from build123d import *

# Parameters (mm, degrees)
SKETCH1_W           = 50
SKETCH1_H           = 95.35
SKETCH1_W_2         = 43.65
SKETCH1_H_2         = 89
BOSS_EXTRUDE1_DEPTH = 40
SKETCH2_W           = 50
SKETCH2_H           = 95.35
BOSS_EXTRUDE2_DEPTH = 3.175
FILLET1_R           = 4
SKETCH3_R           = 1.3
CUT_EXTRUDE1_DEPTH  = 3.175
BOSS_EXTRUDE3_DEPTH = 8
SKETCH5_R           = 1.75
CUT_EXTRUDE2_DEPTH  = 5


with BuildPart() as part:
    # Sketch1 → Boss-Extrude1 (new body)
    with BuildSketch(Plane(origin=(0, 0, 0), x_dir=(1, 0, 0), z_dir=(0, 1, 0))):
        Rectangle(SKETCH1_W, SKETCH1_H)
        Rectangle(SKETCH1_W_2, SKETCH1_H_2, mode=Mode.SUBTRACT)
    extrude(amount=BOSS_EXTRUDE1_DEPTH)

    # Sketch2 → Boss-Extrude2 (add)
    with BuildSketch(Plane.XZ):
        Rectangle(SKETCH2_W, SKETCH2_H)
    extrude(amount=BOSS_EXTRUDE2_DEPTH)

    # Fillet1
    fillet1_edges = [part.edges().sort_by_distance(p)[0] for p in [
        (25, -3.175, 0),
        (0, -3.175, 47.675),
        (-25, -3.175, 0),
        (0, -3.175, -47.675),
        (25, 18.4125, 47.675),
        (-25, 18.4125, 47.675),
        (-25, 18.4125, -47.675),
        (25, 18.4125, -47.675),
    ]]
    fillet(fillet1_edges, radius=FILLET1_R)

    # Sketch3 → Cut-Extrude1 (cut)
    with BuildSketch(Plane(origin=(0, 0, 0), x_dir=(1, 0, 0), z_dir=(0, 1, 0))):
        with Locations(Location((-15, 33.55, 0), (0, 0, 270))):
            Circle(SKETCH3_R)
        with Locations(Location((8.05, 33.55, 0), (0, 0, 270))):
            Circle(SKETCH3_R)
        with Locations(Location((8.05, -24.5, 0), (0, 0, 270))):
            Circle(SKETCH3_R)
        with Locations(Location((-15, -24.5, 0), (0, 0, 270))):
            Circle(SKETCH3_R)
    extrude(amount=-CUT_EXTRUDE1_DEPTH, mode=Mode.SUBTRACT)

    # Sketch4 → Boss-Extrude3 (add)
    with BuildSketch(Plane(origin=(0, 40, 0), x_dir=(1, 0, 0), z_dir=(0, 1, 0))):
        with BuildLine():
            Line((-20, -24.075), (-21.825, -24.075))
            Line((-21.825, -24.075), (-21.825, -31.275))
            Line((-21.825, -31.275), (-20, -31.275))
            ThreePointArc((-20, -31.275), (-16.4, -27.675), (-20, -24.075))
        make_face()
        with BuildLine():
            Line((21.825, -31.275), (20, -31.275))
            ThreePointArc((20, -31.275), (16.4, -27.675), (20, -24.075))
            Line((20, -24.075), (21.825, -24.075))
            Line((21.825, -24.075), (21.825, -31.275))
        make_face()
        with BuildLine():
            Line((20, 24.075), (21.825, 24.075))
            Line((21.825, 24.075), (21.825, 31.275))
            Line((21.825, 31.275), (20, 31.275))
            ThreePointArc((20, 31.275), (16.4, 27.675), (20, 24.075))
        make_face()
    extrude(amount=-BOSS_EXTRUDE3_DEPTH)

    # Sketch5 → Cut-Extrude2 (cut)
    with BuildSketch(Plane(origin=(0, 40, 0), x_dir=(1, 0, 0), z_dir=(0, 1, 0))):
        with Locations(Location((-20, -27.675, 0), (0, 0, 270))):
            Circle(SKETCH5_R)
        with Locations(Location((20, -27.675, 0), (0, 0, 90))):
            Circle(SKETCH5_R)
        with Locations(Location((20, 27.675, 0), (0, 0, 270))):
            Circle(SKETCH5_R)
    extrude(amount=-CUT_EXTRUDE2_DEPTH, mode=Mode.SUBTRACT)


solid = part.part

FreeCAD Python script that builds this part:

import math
import FreeCAD as App
import Part
import Sketcher
from FreeCAD import Vector


def edges_at(feature, points):
    """Names of the edges that pass closest to the given points."""
    edges = feature.Shape.Edges
    near = lambda p: min(range(len(edges)), key=lambda i: edges[i].distToShape(Part.Vertex(*p))[0])
    return sorted({f"Edge{near(p) + 1}" for p in points})

doc = App.newDocument("Part")
params = doc.addObject("Spreadsheet::Sheet", "Params")
for row, (alias, value) in enumerate([
    ("sketch1_width", "50 mm"),
    ("sketch1_height", "89 mm"),
    ("sketch1_width2", "43.65 mm"),
    ("sketch1_height2", "95.35 mm"),
    ("pad1_length", "40 mm"),
    ("sketch2_width", "50 mm"),
    ("sketch2_height", "95.35 mm"),
    ("pad2_length", "3.175 mm"),
    ("fillet_radius", "4 mm"),
    ("sketch3_diameter", "2.6 mm"),
    ("pocket1_length", "3.175 mm"),
    ("sketch4_radius", "3.6 mm"),
    ("pad3_length", "8 mm"),
    ("sketch5_diameter", "3.5 mm"),
    ("pocket2_length", "5 mm"),
], start=1):
    params.set(f"A{row}", alias)
    params.set(f"B{row}", "=" + value)
    params.setAlias(f"B{row}", alias)

body = doc.addObject("PartDesign::Body", "Body")

# Sketch on XZ plane
sketch1 = body.newObject("Sketcher::SketchObject", "Sketch")
sketch1.AttachmentSupport = (doc.getObject("XZ_Plane"), [""])
sketch1.MapMode = "FlatFace"
sketch1.addGeometry(Part.LineSegment(Vector(-25, -48, 0), Vector(-25, 48, 0)), False)
sketch1.addGeometry(Part.LineSegment(Vector(-25, 48, 0), Vector(25, 48, 0)), False)
sketch1.addGeometry(Part.LineSegment(Vector(25, 48, 0), Vector(25, -48, 0)), False)
sketch1.addGeometry(Part.LineSegment(Vector(25, -48, 0), Vector(-25, -48, 0)), False)
sketch1.addGeometry(Part.LineSegment(Vector(22, 44, 0), Vector(-22, 44, 0)), False)
sketch1.addGeometry(Part.LineSegment(Vector(-22, 44, 0), Vector(-22, -44, 0)), False)
sketch1.addGeometry(Part.LineSegment(Vector(-22, -44, 0), Vector(22, -44, 0)), False)
sketch1.addGeometry(Part.LineSegment(Vector(22, -44, 0), Vector(22, 44, 0)), False)
sketch1.addConstraint(Sketcher.Constraint("Coincident", 0, 2, 1, 1))
sketch1.addConstraint(Sketcher.Constraint("Coincident", 1, 2, 2, 1))
sketch1.addConstraint(Sketcher.Constraint("Coincident", 2, 2, 3, 1))
sketch1.addConstraint(Sketcher.Constraint("Coincident", 3, 2, 0, 1))
sketch1.addConstraint(Sketcher.Constraint("Coincident", 4, 2, 5, 1))
sketch1.addConstraint(Sketcher.Constraint("Coincident", 5, 2, 6, 1))
sketch1.addConstraint(Sketcher.Constraint("Coincident", 6, 2, 7, 1))
sketch1.addConstraint(Sketcher.Constraint("Coincident", 7, 2, 4, 1))
sketch1.addConstraint(Sketcher.Constraint("Vertical", 0))
sketch1.addConstraint(Sketcher.Constraint("Horizontal", 1))
sketch1.addConstraint(Sketcher.Constraint("Vertical", 2))
sketch1.addConstraint(Sketcher.Constraint("Horizontal", 3))
sketch1.addConstraint(Sketcher.Constraint("Horizontal", 4))
sketch1.addConstraint(Sketcher.Constraint("Vertical", 5))
sketch1.addConstraint(Sketcher.Constraint("Horizontal", 6))
sketch1.addConstraint(Sketcher.Constraint("Vertical", 7))
sketch1.addConstraint(Sketcher.Constraint("Symmetric", 0, 2, 2, 2, -1, 1))
sketch1.addConstraint(Sketcher.Constraint("Symmetric", 4, 2, 6, 2, -1, 1))
sketch1.addConstraint(Sketcher.Constraint("DistanceX", 1, 1, 1, 2, 50.0))
sketch1.addConstraint(Sketcher.Constraint("DistanceY", 5, 2, 5, 1, 89.0))
sketch1.addConstraint(Sketcher.Constraint("DistanceX", 4, 2, 4, 1, 43.65))
sketch1.addConstraint(Sketcher.Constraint("DistanceY", 0, 1, 0, 2, 95.35))
sketch1.setExpression("Constraints[18]", "Params.sketch1_width")
sketch1.setExpression("Constraints[19]", "Params.sketch1_height")
sketch1.setExpression("Constraints[20]", "Params.sketch1_width2")
sketch1.setExpression("Constraints[21]", "Params.sketch1_height2")
pad1 = body.newObject("PartDesign::Pad", "Pad")
pad1.Profile = sketch1
pad1.setExpression("Length", "Params.pad1_length")
pad1.Reversed = True

# Sketch on XZ plane
sketch2 = body.newObject("Sketcher::SketchObject", "Sketch001")
sketch2.AttachmentSupport = (doc.getObject("XZ_Plane"), [""])
sketch2.MapMode = "FlatFace"
sketch2.addGeometry(Part.LineSegment(Vector(-25, 48, 0), Vector(-25, -48, 0)), False)
sketch2.addGeometry(Part.LineSegment(Vector(-25, -48, 0), Vector(25, -48, 0)), False)
sketch2.addGeometry(Part.LineSegment(Vector(25, -48, 0), Vector(25, 48, 0)), False)
sketch2.addGeometry(Part.LineSegment(Vector(25, 48, 0), Vector(-25, 48, 0)), False)
sketch2.addConstraint(Sketcher.Constraint("Coincident", 0, 2, 1, 1))
sketch2.addConstraint(Sketcher.Constraint("Coincident", 1, 2, 2, 1))
sketch2.addConstraint(Sketcher.Constraint("Coincident", 2, 2, 3, 1))
sketch2.addConstraint(Sketcher.Constraint("Coincident", 3, 2, 0, 1))
sketch2.addConstraint(Sketcher.Constraint("Vertical", 0))
sketch2.addConstraint(Sketcher.Constraint("Horizontal", 1))
sketch2.addConstraint(Sketcher.Constraint("Vertical", 2))
sketch2.addConstraint(Sketcher.Constraint("Horizontal", 3))
sketch2.addConstraint(Sketcher.Constraint("Symmetric", 0, 2, 2, 2, -1, 1))
sketch2.addConstraint(Sketcher.Constraint("DistanceX", 1, 1, 1, 2, 50.0))
sketch2.addConstraint(Sketcher.Constraint("DistanceY", 0, 2, 0, 1, 95.35))
sketch2.setExpression("Constraints[9]", "Params.sketch2_width")
sketch2.setExpression("Constraints[10]", "Params.sketch2_height")
pad2 = body.newObject("PartDesign::Pad", "Pad001")
pad2.Profile = sketch2
pad2.setExpression("Length", "Params.pad2_length")
doc.recompute()

fillet = body.newObject("PartDesign::Fillet", "Fillet")
fillet.Base = (pad2, edges_at(pad2, [
    (25, -3.175, 0),
    (0, -3.175, 47.675),
    (-25, -3.175, 0),
    (0, -3.175, -47.675),
    (25, 18.413, 47.675),
    (-25, 18.413, 47.675),
    (-25, 18.413, -47.675),
    (25, 18.413, -47.675),
]))
fillet.setExpression("Radius", "Params.fillet_radius")

# Sketch on XZ plane
sketch3 = body.newObject("Sketcher::SketchObject", "Sketch002")
sketch3.AttachmentSupport = (doc.getObject("XZ_Plane"), [""])
sketch3.MapMode = "FlatFace"
sketch3.addGeometry(Part.Circle(Vector(-15, -33.5, 0), Vector(0, 0, 1), 1.3), False)
sketch3.addGeometry(Part.Circle(Vector(8.1, -33.5, 0), Vector(0, 0, 1), 1.3), False)
sketch3.addGeometry(Part.Circle(Vector(8.1, 24.5, 0), Vector(0, 0, 1), 1.3), False)
sketch3.addGeometry(Part.Circle(Vector(-15, 24.5, 0), Vector(0, 0, 1), 1.3), False)
sketch3.addConstraint(Sketcher.Constraint("Equal", 0, 1))
sketch3.addConstraint(Sketcher.Constraint("Equal", 1, 2))
sketch3.addConstraint(Sketcher.Constraint("Equal", 2, 3))
sketch3.addConstraint(Sketcher.Constraint("Horizontal", 0, 3, 1, 3))
sketch3.addConstraint(Sketcher.Constraint("Horizontal", 2, 3, 3, 3))
sketch3.addConstraint(Sketcher.Constraint("Vertical", 1, 3, 2, 3))
sketch3.addConstraint(Sketcher.Constraint("Vertical", 0, 3, 3, 3))
sketch3.addConstraint(Sketcher.Constraint("Diameter", 0, 2.6))
sketch3.addConstraint(Sketcher.Constraint("DistanceX", 0, 3, -1, 1, 15.0))
sketch3.addConstraint(Sketcher.Constraint("DistanceY", -1, 1, 2, 3, 24.5))
sketch3.addConstraint(Sketcher.Constraint("DistanceY", 0, 3, -1, 1, 33.55))
sketch3.addConstraint(Sketcher.Constraint("DistanceX", -1, 1, 1, 3, 8.05))
sketch3.setExpression("Constraints[7]", "Params.sketch3_diameter")
pocket1 = body.newObject("PartDesign::Pocket", "Pocket")
pocket1.Profile = sketch3
pocket1.setExpression("Length", "Params.pocket1_length")
pocket1.Reversed = True

# Sketch on XZ plane
sketch4 = body.newObject("Sketcher::SketchObject", "Sketch003")
sketch4.AttachmentSupport = (doc.getObject("XZ_Plane"), [""])
sketch4.MapMode = "FlatFace"
sketch4.AttachmentOffset = App.Placement(Vector(0, 0, -40), App.Rotation())
sketch4.addGeometry(Part.LineSegment(Vector(-20, 24.1, 0), Vector(-21.8, 24.1, 0)), False)
sketch4.addGeometry(Part.LineSegment(Vector(-21.8, 24.1, 0), Vector(-21.8, 31.3, 0)), False)
sketch4.addGeometry(Part.LineSegment(Vector(-21.8, 31.3, 0), Vector(-20, 31.3, 0)), False)
sketch4.addGeometry(Part.ArcOfCircle(Part.Circle(Vector(-20, 27.7, 0), Vector(0, 0, 1), 3.6), math.radians(-90), math.radians(90)), False)
sketch4.addGeometry(Part.LineSegment(Vector(20, 31.3, 0), Vector(21.8, 31.3, 0)), False)
sketch4.addGeometry(Part.LineSegment(Vector(21.8, 31.3, 0), Vector(21.8, 24.1, 0)), False)
sketch4.addGeometry(Part.LineSegment(Vector(21.8, 24.1, 0), Vector(20, 24.1, 0)), False)
sketch4.addGeometry(Part.ArcOfCircle(Part.Circle(Vector(20, 27.7, 0), Vector(0, 0, 1), 3.6), math.radians(90), math.radians(270)), False)
sketch4.addGeometry(Part.LineSegment(Vector(20, -24.1, 0), Vector(21.8, -24.1, 0)), False)
sketch4.addGeometry(Part.LineSegment(Vector(21.8, -24.1, 0), Vector(21.8, -31.3, 0)), False)
sketch4.addGeometry(Part.LineSegment(Vector(21.8, -31.3, 0), Vector(20, -31.3, 0)), False)
sketch4.addGeometry(Part.ArcOfCircle(Part.Circle(Vector(20, -27.7, 0), Vector(0, 0, 1), 3.6), math.radians(90), math.radians(270)), False)
sketch4.addConstraint(Sketcher.Constraint("Coincident", 0, 2, 1, 1))
sketch4.addConstraint(Sketcher.Constraint("Coincident", 1, 2, 2, 1))
sketch4.addConstraint(Sketcher.Constraint("Tangent", 2, 2, 3, 2))
sketch4.addConstraint(Sketcher.Constraint("Tangent", 3, 1, 0, 1))
sketch4.addConstraint(Sketcher.Constraint("Coincident", 4, 2, 5, 1))
sketch4.addConstraint(Sketcher.Constraint("Coincident", 5, 2, 6, 1))
sketch4.addConstraint(Sketcher.Constraint("Tangent", 6, 2, 7, 2))
sketch4.addConstraint(Sketcher.Constraint("Tangent", 7, 1, 4, 1))
sketch4.addConstraint(Sketcher.Constraint("Coincident", 8, 2, 9, 1))
sketch4.addConstraint(Sketcher.Constraint("Coincident", 9, 2, 10, 1))
sketch4.addConstraint(Sketcher.Constraint("Tangent", 10, 2, 11, 2))
sketch4.addConstraint(Sketcher.Constraint("Tangent", 11, 1, 8, 1))
sketch4.addConstraint(Sketcher.Constraint("Horizontal", 0))
sketch4.addConstraint(Sketcher.Constraint("Vertical", 1))
sketch4.addConstraint(Sketcher.Constraint("Horizontal", 2))
sketch4.addConstraint(Sketcher.Constraint("Horizontal", 4))
sketch4.addConstraint(Sketcher.Constraint("Vertical", 5))
sketch4.addConstraint(Sketcher.Constraint("Horizontal", 6))
sketch4.addConstraint(Sketcher.Constraint("Horizontal", 8))
sketch4.addConstraint(Sketcher.Constraint("Vertical", 9))
sketch4.addConstraint(Sketcher.Constraint("Horizontal", 10))
sketch4.addConstraint(Sketcher.Constraint("Equal", 3, 7))
sketch4.addConstraint(Sketcher.Constraint("Equal", 7, 11))
sketch4.addConstraint(Sketcher.Constraint("Symmetric", 3, 3, 11, 3, -1, 1))
sketch4.addConstraint(Sketcher.Constraint("Symmetric", 3, 3, 7, 3, -2))
sketch4.addConstraint(Sketcher.Constraint("Vertical", 5, 2, 8, 2))
sketch4.addConstraint(Sketcher.Constraint("Equal", 2, 4))
sketch4.addConstraint(Sketcher.Constraint("Radius", 3, 3.6))
sketch4.addConstraint(Sketcher.Constraint("DistanceX", 3, 3, -1, 1, 20.0))
sketch4.addConstraint(Sketcher.Constraint("DistanceX", 0, 2, 0, 1, 1.825))
sketch4.addConstraint(Sketcher.Constraint("DistanceY", 11, 3, 7, 3, 55.35))
sketch4.setExpression("Constraints[27]", "Params.sketch4_radius")
pad3 = body.newObject("PartDesign::Pad", "Pad002")
pad3.Profile = sketch4
pad3.setExpression("Length", "Params.pad3_length")

# Sketch on XZ plane
sketch5 = body.newObject("Sketcher::SketchObject", "Sketch004")
sketch5.AttachmentSupport = (doc.getObject("XZ_Plane"), [""])
sketch5.MapMode = "FlatFace"
sketch5.AttachmentOffset = App.Placement(Vector(0, 0, -40), App.Rotation())
sketch5.addGeometry(Part.Circle(Vector(-20, 27.7, 0), Vector(0, 0, 1), 1.8), False)
sketch5.addGeometry(Part.Circle(Vector(20, 27.7, 0), Vector(0, 0, 1), 1.8), False)
sketch5.addGeometry(Part.Circle(Vector(20, -27.7, 0), Vector(0, 0, 1), 1.8), False)
sketch5.addConstraint(Sketcher.Constraint("Equal", 0, 1))
sketch5.addConstraint(Sketcher.Constraint("Equal", 1, 2))
sketch5.addConstraint(Sketcher.Constraint("Symmetric", 0, 3, 2, 3, -1, 1))
sketch5.addConstraint(Sketcher.Constraint("Symmetric", 0, 3, 1, 3, -2))
sketch5.addConstraint(Sketcher.Constraint("Diameter", 0, 3.5))
sketch5.addConstraint(Sketcher.Constraint("DistanceX", 0, 3, -1, 1, 20.0))
sketch5.addConstraint(Sketcher.Constraint("DistanceY", 2, 3, 1, 3, 55.35))
sketch5.setExpression("Constraints[4]", "Params.sketch5_diameter")
pocket2 = body.newObject("PartDesign::Pocket", "Pocket001")
pocket2.Profile = sketch5
pocket2.setExpression("Length", "Params.pocket2_length")
pocket2.Reversed = True

doc.recompute()
